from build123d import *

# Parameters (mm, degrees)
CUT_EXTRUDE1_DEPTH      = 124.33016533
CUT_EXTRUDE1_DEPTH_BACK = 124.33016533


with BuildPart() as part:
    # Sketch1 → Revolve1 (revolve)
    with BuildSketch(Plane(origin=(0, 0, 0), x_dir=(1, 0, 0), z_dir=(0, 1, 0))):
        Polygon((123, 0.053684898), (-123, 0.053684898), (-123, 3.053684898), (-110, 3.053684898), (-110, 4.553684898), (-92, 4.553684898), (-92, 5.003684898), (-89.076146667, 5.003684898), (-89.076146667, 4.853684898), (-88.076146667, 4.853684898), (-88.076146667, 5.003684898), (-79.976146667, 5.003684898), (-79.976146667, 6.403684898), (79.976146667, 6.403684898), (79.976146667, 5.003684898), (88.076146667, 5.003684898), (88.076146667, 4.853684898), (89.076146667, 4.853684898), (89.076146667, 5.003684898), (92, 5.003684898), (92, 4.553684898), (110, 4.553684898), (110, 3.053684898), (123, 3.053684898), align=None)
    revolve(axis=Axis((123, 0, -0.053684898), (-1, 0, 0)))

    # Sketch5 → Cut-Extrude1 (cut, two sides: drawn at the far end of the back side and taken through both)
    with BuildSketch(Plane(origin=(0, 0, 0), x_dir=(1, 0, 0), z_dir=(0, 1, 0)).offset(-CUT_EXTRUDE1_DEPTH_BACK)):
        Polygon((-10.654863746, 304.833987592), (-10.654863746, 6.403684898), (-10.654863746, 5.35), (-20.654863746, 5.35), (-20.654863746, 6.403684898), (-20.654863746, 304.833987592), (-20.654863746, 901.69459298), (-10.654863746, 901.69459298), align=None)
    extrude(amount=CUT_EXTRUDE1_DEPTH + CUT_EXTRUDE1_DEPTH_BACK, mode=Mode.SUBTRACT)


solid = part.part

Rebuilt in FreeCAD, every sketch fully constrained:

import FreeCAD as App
import Part
import Sketcher

V = App.Vector


def add_polygon(sketch, points):
    """Adds a closed chain of lines whose ends are joined by coincident constraints."""
    first, n = sketch.GeometryCount, len(points)
    for a, b in zip(points, points[1:] + points[:1]):
        sketch.addGeometry(Part.LineSegment(App.Vector(*a, 0), App.Vector(*b, 0)), False)
    for i in range(n):
        sketch.addConstraint(Sketcher.Constraint("Coincident", first + i, 2, first + (i + 1) % n, 1))

doc = App.newDocument("Part")
body = doc.addObject("PartDesign::Body", "Body")

# Sketch on XZ plane
sketch1 = body.newObject("Sketcher::SketchObject", "Sketch")
sketch1.AttachmentSupport = (doc.getObject("XZ_Plane"), [""])
sketch1.MapMode = "FlatFace"
add_polygon(sketch1, [(-123, -0.053685), (123, -0.053685), (123, -3.053685), (110, -3.053685), (110, -4.553685), (92, -4.553685), (92, -5.003685), (89.076147, -5.003685), (89.076147, -4.853685), (88.076147, -4.853685), (88.076147, -5.003685), (79.976147, -5.003685), (79.976147, -6.403685), (-79.976147, -6.403685), (-79.976147, -5.003685), (-88.076147, -5.003685), (-88.076147, -4.853685), (-89.076147, -4.853685), (-89.076147, -5.003685), (-92, -5.003685), (-92, -4.553685), (-110, -4.553685), (-110, -3.053685), (-123, -3.053685)])  # lines 0-23
sketch1.addGeometry(Part.LineSegment(V(123, -0.053685, 0), V(-123, -0.053685, 0)), True)  # axis
sketch1.addConstraint([
    Sketcher.Constraint("Horizontal", 0),
    Sketcher.Constraint("Vertical", 1),
    Sketcher.Constraint("Horizontal", 2),
    Sketcher.Constraint("Vertical", 3),
    Sketcher.Constraint("Horizontal", 4),
    Sketcher.Constraint("Vertical", 5),
    Sketcher.Constraint("Horizontal", 6),
    Sketcher.Constraint("Vertical", 7),
    Sketcher.Constraint("Horizontal", 8),
    Sketcher.Constraint("Vertical", 9),
    Sketcher.Constraint("Horizontal", 10),
    Sketcher.Constraint("Vertical", 11),
    Sketcher.Constraint("Horizontal", 12),
    Sketcher.Constraint("Vertical", 13),
    Sketcher.Constraint("Horizontal", 14),
    Sketcher.Constraint("Vertical", 15),
    Sketcher.Constraint("Horizontal", 16),
    Sketcher.Constraint("Vertical", 17),
    Sketcher.Constraint("Horizontal", 18),
    Sketcher.Constraint("Vertical", 19),
    Sketcher.Constraint("Horizontal", 20),
    Sketcher.Constraint("Vertical", 21),
    Sketcher.Constraint("Horizontal", 22),
    Sketcher.Constraint("Vertical", 23),
    Sketcher.Constraint("Horizontal", 24),
    Sketcher.Constraint("Coincident", 24, 1, 0, 2),
    Sketcher.Constraint("Symmetric", 10, 2, 13, 2, -2),
    Sketcher.Constraint("Symmetric", 8, 2, 15, 2, -2),
    Sketcher.Constraint("Symmetric", 6, 2, 17, 2, -2),
    Sketcher.Constraint("Symmetric", 4, 2, 19, 2, -2),
    Sketcher.Constraint("Symmetric", 2, 2, 21, 2, -2),
    Sketcher.Constraint("Horizontal", 6, 2, 9, 2),
    Sketcher.Constraint("Vertical", 22, 2, 24, 2),
    Sketcher.Constraint("Equal", 2, 22),
    Sketcher.Constraint("DistanceX", 0, 1, 0, 2, 246.0),
    Sketcher.Constraint("DistanceX", 2, 2, 2, 1, 13.0),
    Sketcher.Constraint("DistanceX", 4, 2, 4, 1, 18.0),
    Sketcher.Constraint("DistanceX", 8, 2, 8, 1, 1.0),
    Sketcher.Constraint("DistanceY", 1, 2, 1, 1, 3.0),
    Sketcher.Constraint("DistanceX", 10, 2, 10, 1, 8.1),
    Sketcher.Constraint("DistanceY", 3, 2, 3, 1, 1.5),
    Sketcher.Constraint("DistanceY", 11, 2, 11, 1, 1.4),
    Sketcher.Constraint("DistanceY", 5, 2, 5, 1, 0.45),
    Sketcher.Constraint("DistanceY", 7, 1, 7, 2, 0.15),
    Sketcher.Constraint("DistanceX", 6, 2, 6, 1, 2.923853),
    Sketcher.Constraint("DistanceY", 0, 2, -1, 1, 0.053685),
])
revolution = body.newObject("PartDesign::Revolution", "Revolution")
revolution.Profile = sketch1
revolution.ReferenceAxis = (sketch1, ["Axis0"])
revolution.Angle = 360

# Sketch on XZ plane
sketch2 = body.newObject("Sketcher::SketchObject", "Sketch001")
sketch2.AttachmentSupport = (doc.getObject("XZ_Plane"), [""])
sketch2.MapMode = "FlatFace"
add_polygon(sketch2, [(-10.654864, -5.35), (-10.654864, -901.694593), (-20.654864, -901.694593), (-20.654864, -5.35)])  # lines 0-3
sketch2.addConstraint([
    Sketcher.Constraint("Vertical", 0),
    Sketcher.Constraint("Horizontal", 1),
    Sketcher.Constraint("Vertical", 2),
    Sketcher.Constraint("Horizontal", 3),
    Sketcher.Constraint("DistanceX", 1, 2, 1, 1, 10.0),
    Sketcher.Constraint("DistanceY", 2, 2, -1, 1, 5.35),
    Sketcher.Constraint("DistanceY", 0, 2, 0, 1, 896.344593),
    Sketcher.Constraint("DistanceX", 0, 2, -1, 1, 10.654864),
])
pocket1 = body.newObject("PartDesign::Pocket", "Pocket")
pocket1.Profile = sketch2
pocket1.Type = "ThroughAll"
pocket1.Midplane = True

doc.recompute()
